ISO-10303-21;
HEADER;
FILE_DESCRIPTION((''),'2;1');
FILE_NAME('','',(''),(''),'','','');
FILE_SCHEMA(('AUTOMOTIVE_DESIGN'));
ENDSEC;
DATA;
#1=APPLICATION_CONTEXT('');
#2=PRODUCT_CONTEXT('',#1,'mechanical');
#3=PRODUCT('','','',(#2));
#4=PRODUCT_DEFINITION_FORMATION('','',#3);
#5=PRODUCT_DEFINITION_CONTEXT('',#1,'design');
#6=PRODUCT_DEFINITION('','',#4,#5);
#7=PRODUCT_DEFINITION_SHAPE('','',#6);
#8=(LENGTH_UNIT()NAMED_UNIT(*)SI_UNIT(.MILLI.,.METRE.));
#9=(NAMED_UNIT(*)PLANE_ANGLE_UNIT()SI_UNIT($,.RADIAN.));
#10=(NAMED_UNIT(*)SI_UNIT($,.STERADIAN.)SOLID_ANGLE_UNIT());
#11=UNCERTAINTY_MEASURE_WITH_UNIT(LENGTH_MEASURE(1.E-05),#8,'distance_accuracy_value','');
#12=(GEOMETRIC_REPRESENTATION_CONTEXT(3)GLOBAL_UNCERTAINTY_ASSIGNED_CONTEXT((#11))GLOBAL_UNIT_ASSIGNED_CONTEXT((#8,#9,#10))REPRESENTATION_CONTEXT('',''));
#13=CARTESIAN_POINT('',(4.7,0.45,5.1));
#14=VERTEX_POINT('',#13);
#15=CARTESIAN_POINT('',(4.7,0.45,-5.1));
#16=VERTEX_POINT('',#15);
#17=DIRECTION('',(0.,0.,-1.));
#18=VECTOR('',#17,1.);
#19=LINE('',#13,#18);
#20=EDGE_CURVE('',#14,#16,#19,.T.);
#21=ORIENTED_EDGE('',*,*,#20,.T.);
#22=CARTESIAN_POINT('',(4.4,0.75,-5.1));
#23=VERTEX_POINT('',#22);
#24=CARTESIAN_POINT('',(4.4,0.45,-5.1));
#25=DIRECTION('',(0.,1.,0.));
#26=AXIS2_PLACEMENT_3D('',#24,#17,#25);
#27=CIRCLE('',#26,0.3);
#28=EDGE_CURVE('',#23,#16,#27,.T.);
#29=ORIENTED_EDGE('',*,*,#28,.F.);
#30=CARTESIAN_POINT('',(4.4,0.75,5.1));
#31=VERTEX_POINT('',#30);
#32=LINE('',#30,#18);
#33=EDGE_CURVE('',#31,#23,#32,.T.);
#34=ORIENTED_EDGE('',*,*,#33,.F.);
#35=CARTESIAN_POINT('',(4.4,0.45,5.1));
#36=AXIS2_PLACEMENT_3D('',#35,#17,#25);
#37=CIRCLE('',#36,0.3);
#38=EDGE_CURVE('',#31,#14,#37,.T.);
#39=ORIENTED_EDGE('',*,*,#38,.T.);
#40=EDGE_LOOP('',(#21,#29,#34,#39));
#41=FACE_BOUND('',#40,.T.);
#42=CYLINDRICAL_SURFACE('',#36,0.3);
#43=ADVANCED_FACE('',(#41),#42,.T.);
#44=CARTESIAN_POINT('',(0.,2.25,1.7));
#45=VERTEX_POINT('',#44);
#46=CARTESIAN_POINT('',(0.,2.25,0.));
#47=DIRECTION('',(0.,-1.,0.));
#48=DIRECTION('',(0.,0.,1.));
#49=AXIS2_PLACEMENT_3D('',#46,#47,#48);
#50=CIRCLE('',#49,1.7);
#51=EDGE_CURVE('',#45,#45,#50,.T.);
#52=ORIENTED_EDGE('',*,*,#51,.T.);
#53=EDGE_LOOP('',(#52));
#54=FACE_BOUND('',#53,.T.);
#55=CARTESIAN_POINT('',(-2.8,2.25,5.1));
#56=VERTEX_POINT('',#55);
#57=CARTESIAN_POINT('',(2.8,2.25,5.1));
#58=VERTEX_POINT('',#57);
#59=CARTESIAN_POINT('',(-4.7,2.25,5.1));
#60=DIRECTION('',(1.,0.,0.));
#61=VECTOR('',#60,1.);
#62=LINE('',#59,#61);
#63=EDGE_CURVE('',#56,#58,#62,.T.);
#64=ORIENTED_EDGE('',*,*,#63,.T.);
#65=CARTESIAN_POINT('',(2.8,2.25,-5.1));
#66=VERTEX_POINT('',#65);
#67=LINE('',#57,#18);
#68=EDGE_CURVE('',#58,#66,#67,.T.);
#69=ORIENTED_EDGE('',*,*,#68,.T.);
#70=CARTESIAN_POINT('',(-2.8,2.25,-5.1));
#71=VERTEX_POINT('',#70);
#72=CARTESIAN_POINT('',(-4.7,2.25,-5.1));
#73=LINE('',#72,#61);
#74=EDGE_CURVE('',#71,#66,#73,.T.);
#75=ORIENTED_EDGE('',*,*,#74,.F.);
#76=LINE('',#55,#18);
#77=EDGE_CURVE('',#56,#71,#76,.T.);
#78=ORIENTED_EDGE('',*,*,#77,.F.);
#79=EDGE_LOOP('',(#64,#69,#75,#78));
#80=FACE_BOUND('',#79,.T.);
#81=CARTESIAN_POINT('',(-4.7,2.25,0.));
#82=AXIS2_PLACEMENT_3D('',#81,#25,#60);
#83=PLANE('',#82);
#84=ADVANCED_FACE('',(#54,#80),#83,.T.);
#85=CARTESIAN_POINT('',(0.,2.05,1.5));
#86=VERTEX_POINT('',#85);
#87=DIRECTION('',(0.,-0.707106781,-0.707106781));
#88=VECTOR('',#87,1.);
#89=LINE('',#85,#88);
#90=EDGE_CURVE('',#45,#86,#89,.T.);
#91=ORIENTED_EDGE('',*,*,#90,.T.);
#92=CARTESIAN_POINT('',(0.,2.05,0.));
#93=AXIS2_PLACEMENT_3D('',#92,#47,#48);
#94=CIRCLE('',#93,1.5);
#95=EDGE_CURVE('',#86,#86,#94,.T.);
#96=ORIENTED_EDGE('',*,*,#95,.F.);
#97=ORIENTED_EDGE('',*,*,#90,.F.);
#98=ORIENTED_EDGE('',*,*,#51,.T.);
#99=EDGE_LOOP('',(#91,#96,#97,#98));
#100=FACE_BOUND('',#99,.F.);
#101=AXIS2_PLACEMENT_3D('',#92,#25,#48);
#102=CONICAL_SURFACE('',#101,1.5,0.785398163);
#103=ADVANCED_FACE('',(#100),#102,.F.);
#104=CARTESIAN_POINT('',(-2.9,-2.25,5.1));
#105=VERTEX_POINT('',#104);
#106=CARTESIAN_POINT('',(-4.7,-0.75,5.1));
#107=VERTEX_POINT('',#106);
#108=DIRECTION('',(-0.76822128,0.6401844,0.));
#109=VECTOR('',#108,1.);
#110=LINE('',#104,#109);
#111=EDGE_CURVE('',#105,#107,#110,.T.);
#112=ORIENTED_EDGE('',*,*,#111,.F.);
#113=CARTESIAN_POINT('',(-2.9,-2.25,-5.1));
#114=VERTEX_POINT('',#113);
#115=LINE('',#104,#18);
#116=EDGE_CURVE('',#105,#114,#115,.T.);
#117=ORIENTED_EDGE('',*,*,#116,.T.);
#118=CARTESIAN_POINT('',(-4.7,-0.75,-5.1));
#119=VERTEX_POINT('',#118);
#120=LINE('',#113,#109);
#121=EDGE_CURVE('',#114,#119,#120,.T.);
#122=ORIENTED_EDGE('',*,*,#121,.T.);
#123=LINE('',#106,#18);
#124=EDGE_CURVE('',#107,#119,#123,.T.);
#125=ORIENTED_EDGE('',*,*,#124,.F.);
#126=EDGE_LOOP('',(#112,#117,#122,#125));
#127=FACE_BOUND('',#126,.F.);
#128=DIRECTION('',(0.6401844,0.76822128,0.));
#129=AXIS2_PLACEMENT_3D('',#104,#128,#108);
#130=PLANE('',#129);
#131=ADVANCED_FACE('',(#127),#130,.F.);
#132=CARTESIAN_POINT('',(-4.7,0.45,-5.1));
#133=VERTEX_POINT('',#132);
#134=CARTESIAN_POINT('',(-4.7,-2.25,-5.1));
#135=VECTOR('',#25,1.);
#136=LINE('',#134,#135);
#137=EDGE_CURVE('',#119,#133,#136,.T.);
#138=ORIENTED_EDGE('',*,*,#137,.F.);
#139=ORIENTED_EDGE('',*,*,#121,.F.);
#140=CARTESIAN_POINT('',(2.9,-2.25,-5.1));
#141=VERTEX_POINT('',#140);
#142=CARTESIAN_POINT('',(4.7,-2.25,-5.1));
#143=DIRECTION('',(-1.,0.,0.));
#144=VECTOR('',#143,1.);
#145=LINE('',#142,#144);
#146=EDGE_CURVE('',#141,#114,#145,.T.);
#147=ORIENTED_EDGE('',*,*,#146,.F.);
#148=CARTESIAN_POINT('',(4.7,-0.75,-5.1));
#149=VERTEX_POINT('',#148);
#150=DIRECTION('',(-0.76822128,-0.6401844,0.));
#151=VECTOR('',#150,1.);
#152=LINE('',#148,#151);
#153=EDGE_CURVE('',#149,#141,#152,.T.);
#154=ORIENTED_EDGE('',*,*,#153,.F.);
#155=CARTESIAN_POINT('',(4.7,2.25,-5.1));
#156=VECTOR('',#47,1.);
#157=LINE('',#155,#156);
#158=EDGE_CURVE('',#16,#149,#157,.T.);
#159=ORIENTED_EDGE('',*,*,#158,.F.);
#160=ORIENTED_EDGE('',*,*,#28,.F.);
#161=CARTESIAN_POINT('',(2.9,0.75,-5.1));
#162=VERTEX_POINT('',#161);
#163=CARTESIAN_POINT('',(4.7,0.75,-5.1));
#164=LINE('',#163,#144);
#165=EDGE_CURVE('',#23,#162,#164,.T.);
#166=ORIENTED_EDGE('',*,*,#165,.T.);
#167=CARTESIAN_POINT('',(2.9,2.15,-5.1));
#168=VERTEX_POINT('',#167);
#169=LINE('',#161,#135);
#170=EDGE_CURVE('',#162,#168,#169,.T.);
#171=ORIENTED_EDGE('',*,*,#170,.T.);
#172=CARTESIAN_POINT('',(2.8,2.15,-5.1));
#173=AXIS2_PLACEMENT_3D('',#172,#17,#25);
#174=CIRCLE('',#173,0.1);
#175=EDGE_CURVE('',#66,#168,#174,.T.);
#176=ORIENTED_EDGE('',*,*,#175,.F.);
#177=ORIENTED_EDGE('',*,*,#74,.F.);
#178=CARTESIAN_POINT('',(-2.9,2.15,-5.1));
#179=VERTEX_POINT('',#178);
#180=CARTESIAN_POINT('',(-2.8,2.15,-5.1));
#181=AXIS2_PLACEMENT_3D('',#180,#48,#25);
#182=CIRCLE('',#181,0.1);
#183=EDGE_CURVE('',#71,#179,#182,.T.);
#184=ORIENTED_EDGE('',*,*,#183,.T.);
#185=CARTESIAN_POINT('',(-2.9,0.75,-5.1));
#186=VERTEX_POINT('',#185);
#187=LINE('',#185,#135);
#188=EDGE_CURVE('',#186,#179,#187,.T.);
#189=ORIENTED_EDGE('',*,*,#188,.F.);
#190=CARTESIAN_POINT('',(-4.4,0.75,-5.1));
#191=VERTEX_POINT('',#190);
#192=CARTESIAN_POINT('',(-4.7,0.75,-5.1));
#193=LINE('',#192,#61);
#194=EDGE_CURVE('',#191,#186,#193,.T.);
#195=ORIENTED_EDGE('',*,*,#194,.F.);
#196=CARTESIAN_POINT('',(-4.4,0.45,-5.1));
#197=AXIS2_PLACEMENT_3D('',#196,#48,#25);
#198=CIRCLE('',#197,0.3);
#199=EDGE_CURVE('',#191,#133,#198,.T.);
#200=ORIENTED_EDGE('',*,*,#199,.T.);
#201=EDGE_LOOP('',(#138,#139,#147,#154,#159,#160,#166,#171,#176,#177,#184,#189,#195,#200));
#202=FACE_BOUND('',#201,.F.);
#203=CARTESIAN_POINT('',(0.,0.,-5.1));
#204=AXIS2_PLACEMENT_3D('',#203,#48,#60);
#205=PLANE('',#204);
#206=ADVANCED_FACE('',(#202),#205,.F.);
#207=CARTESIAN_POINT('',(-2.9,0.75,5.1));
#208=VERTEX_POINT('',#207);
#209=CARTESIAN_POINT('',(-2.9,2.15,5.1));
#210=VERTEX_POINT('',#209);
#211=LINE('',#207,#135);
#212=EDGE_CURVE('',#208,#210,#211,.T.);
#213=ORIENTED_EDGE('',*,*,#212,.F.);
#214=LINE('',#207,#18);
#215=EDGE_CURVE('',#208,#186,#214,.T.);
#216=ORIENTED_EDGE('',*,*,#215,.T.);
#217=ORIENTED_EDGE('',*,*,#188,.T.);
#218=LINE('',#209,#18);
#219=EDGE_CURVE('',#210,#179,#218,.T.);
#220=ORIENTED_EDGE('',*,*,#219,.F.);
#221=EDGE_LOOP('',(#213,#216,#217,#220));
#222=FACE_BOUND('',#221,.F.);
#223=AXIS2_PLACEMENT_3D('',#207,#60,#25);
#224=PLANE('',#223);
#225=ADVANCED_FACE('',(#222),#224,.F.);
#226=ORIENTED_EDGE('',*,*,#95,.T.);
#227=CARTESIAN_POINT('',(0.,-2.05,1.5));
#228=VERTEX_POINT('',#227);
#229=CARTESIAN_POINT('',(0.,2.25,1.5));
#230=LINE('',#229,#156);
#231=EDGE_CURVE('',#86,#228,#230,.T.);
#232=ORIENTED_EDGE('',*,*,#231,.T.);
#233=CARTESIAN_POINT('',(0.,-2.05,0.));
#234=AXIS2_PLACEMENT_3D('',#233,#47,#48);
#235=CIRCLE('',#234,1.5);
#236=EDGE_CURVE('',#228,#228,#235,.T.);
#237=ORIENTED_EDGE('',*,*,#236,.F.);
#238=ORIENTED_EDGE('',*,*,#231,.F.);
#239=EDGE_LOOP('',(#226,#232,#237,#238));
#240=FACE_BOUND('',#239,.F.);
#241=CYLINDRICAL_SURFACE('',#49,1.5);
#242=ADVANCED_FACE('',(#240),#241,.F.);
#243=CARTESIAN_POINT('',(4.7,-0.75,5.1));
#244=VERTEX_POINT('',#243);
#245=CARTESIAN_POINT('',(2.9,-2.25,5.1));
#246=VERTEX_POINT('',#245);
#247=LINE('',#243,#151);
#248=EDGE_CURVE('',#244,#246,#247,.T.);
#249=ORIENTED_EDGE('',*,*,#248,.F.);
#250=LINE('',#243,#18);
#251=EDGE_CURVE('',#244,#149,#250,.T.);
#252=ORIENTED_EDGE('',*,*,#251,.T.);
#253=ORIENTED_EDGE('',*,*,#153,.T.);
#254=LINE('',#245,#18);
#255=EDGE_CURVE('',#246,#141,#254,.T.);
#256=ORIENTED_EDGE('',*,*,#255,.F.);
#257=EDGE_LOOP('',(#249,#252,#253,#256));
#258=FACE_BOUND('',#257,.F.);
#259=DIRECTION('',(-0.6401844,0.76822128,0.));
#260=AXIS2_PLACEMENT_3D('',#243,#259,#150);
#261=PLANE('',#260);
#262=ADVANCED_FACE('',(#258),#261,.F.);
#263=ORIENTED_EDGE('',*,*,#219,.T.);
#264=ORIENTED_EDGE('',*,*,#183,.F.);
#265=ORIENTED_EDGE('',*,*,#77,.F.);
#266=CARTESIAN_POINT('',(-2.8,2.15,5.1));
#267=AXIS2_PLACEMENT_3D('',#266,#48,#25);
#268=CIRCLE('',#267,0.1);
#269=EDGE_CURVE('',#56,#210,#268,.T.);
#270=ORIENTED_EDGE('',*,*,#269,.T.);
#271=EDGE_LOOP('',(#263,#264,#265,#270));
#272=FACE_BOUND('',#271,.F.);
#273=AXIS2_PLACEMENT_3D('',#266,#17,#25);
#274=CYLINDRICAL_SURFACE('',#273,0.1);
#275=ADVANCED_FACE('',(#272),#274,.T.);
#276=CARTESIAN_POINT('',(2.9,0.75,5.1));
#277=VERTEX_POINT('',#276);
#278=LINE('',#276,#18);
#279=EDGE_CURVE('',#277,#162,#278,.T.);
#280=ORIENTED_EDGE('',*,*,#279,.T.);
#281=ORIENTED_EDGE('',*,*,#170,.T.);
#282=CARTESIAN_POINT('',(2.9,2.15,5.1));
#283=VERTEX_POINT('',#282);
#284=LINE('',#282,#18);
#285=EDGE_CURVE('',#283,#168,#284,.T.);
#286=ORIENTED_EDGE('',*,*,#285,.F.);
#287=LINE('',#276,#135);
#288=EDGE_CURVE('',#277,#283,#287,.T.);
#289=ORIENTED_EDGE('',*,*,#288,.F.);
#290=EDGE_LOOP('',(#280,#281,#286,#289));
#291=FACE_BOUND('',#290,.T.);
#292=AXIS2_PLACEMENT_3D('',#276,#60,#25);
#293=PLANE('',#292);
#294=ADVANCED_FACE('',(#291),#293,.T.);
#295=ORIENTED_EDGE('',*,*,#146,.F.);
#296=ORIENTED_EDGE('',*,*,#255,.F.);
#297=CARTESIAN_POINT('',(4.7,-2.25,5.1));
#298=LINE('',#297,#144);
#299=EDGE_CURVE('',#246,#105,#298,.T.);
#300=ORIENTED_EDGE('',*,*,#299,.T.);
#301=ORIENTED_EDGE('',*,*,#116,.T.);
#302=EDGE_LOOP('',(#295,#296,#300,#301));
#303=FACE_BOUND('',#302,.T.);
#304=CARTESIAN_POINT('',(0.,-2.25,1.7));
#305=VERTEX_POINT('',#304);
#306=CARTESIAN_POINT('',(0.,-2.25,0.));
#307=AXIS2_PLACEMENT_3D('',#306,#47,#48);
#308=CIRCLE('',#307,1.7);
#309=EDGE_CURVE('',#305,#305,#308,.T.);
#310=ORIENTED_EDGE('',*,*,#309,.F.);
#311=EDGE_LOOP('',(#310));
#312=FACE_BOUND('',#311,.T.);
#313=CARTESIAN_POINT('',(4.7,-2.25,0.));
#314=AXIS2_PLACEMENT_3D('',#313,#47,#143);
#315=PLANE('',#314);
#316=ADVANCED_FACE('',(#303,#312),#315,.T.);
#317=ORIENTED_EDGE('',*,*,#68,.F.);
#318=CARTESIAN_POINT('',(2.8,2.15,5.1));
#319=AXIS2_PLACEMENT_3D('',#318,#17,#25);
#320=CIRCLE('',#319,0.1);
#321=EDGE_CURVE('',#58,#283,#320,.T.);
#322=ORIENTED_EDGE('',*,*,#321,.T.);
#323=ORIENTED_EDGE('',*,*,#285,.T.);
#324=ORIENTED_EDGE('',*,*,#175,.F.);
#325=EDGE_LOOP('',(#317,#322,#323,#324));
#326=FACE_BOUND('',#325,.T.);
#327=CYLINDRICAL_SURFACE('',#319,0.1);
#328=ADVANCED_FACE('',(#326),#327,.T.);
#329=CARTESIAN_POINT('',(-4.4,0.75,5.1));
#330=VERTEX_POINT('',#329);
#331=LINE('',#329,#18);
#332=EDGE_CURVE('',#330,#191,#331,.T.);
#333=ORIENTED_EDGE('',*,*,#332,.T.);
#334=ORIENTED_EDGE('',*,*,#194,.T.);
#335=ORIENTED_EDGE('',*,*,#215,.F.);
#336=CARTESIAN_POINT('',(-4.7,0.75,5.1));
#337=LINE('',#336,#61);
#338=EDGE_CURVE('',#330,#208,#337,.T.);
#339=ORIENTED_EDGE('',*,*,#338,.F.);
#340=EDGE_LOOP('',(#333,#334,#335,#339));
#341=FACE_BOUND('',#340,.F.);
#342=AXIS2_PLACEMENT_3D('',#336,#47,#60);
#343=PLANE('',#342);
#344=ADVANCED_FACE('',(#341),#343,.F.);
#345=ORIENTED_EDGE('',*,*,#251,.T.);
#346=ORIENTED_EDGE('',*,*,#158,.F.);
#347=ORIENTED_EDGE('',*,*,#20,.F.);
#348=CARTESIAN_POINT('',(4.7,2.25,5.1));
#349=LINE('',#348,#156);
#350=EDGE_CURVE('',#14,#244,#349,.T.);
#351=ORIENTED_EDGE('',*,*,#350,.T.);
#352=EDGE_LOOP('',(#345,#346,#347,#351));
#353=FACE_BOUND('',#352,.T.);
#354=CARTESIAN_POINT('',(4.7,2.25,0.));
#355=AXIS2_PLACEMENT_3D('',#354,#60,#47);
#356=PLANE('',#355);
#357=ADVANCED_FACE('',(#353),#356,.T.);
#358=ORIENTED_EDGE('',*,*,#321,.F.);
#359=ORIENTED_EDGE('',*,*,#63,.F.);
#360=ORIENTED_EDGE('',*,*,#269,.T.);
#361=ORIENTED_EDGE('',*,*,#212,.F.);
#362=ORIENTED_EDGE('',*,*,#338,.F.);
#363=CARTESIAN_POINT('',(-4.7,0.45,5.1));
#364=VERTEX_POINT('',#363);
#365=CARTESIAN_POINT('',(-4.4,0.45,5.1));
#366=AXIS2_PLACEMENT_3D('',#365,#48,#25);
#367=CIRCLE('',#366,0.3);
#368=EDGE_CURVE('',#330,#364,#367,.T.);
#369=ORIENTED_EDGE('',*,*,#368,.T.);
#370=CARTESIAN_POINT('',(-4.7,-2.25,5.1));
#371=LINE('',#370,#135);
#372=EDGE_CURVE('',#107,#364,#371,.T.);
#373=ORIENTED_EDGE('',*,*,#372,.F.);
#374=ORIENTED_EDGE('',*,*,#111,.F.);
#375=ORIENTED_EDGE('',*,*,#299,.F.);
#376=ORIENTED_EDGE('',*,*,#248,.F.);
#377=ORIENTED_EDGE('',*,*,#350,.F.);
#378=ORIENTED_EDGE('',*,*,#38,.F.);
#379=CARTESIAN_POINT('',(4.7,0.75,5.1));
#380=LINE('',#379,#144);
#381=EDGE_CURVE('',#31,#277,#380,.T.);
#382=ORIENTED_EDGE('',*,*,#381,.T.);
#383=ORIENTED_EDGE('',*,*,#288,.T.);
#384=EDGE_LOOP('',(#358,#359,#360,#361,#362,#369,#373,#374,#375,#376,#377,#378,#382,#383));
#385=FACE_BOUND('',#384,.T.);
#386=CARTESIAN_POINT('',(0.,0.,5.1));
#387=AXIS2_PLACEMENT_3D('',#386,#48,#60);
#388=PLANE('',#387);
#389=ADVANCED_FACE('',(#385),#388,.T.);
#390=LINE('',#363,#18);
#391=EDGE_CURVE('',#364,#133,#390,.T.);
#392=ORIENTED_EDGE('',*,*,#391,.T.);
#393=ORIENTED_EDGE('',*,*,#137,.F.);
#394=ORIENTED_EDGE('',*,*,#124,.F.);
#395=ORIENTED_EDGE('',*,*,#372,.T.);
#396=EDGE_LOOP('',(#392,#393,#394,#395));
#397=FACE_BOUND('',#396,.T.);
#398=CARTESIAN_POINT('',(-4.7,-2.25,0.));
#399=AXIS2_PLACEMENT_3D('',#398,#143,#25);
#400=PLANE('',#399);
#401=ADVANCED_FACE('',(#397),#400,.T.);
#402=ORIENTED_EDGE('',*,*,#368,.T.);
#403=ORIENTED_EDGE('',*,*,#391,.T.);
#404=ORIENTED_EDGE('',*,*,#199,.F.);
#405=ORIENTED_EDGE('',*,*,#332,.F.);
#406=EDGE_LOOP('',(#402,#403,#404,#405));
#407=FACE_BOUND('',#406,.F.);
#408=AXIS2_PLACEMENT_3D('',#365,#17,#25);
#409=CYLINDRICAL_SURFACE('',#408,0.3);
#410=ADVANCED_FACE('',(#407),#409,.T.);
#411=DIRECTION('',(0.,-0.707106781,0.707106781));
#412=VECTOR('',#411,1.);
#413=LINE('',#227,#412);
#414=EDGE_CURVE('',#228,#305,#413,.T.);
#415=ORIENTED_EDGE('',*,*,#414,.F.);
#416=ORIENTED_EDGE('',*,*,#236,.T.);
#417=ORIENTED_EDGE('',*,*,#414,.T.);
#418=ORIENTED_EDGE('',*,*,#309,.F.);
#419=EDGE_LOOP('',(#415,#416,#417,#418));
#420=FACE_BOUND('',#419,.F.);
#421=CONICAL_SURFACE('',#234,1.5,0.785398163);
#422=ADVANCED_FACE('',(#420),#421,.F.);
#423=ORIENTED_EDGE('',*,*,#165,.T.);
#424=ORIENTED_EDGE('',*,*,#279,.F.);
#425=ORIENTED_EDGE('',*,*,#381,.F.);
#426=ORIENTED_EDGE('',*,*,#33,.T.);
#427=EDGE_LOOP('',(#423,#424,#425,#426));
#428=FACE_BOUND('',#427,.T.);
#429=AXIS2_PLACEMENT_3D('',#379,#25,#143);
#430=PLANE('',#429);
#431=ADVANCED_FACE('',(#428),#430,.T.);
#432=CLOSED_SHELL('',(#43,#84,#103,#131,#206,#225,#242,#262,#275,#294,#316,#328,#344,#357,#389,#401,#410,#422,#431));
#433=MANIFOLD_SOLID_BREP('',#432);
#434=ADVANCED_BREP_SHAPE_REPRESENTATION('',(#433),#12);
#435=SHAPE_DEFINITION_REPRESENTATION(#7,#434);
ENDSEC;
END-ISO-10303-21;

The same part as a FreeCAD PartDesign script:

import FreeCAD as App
import Part
import Sketcher

V = App.Vector
Q = App.Units.Quantity


def edges_at(feature, points):
    """Names of the edges that pass closest to the given points."""
    edges = feature.Shape.Edges
    near = lambda p: min(range(len(edges)), key=lambda i: edges[i].distToShape(Part.Vertex(*p))[0])
    return sorted({f"Edge{near(p) + 1}" for p in points})


def add_polygon(sketch, points):
    """Adds a closed chain of lines whose ends are joined by coincident constraints."""
    first, n = sketch.GeometryCount, len(points)
    for a, b in zip(points, points[1:] + points[:1]):
        sketch.addGeometry(Part.LineSegment(App.Vector(*a, 0), App.Vector(*b, 0)), False)
    for i in range(n):
        sketch.addConstraint(Sketcher.Constraint("Coincident", first + i, 2, first + (i + 1) % n, 1))

doc = App.newDocument("Part")
body = doc.addObject("PartDesign::Body", "Body")

sketch1 = body.newObject("Sketcher::SketchObject", "Sketch")
sketch1.AttachmentSupport = (doc.getObject("XY_Plane"), [""])
sketch1.MapMode = "FlatFace"
add_polygon(sketch1, [(4.7, 2.2), (-4.7, 2.2), (-4.7, -2.2), (4.7, -2.2)])
sketch1.addConstraint([
    Sketcher.Constraint("Horizontal", 0),
    Sketcher.Constraint("Vertical", 1),
    Sketcher.Constraint("Horizontal", 2),
    Sketcher.Constraint("Vertical", 3),
    Sketcher.Constraint("Symmetric", 0, 2, 2, 2, -1, 1),
    Sketcher.Constraint("DistanceX", 0, 2, 0, 1, Q("9.4 mm")),
    Sketcher.Constraint("DistanceY", 1, 2, 1, 1, Q("4.5 mm")),
])
pad1 = body.newObject("PartDesign::Pad", "Pad")
pad1.Profile = sketch1
pad1.Length = 10.2
pad1.Midplane = True

sketch2 = body.newObject("Sketcher::SketchObject", "Sketch001")
sketch2.AttachmentSupport = (doc.getObject("XY_Plane"), [""])
sketch2.MapMode = "FlatFace"
sketch2.AttachmentOffset = App.Placement(V(0, 0, 5.1), App.Rotation())
add_polygon(sketch2, [(-2.9, 2.2), (-4.7, 2.2), (-4.7, 0.8), (-2.9, 0.8)])
add_polygon(sketch2, [(4.7, 2.2), (2.9, 2.2), (2.9, 0.8), (4.7, 0.8)])
sketch2.addConstraint([
    Sketcher.Constraint("Horizontal", 0),
    Sketcher.Constraint("Vertical", 1),
    Sketcher.Constraint("Horizontal", 2),
    Sketcher.Constraint("Vertical", 3),
    Sketcher.Constraint("Horizontal", 4),
    Sketcher.Constraint("Vertical", 5),
    Sketcher.Constraint("Horizontal", 6),
    Sketcher.Constraint("Vertical", 7),
    Sketcher.Constraint("Symmetric", 3, 2, 4, 2, -2),
    Sketcher.Constraint("Symmetric", 1, 2, 6, 2, -2),
    Sketcher.Constraint("DistanceY", 1, 2, 1, 1, Q("1.5 mm")),
    Sketcher.Constraint("DistanceX", 2, 2, -1, 1, Q("2.9 mm")),
    Sketcher.Constraint("DistanceX", 0, 2, 0, 1, Q("1.8 mm")),
    Sketcher.Constraint("DistanceY", -1, 1, 0, 2, Q("2.25 mm")),
])
pocket1 = body.newObject("PartDesign::Pocket", "Pocket")
pocket1.Profile = sketch2
pocket1.Length = 10.2

sketch3 = body.newObject("Sketcher::SketchObject", "Sketch002")
sketch3.AttachmentSupport = (doc.getObject("XY_Plane"), [""])
sketch3.MapMode = "FlatFace"
sketch3.AttachmentOffset = App.Placement(V(0, 0, 5.1), App.Rotation())
add_polygon(sketch3, [(-4.7, -0.8), (-4.7, -2.2), (-2.9, -2.2)])
add_polygon(sketch3, [(4.7, -0.8), (2.9, -2.2), (4.7, -2.2)])
sketch3.addConstraint([
    Sketcher.Constraint("Vertical", 0),
    Sketcher.Constraint("Horizontal", 1),
    Sketcher.Constraint("Horizontal", 4),
    Sketcher.Constraint("Vertical", 5),
    Sketcher.Constraint("Symmetric", 1, 2, 3, 2, -2),
    Sketcher.Constraint("Symmetric", 2, 2, 5, 2, -2),
    Sketcher.Constraint("DistanceY", 0, 2, 0, 1, Q("1.5 mm")),
    Sketcher.Constraint("DistanceX", 1, 2, -1, 1, Q("2.9 mm")),
    Sketcher.Constraint("DistanceX", 1, 1, 1, 2, Q("1.8 mm")),
    Sketcher.Constraint("DistanceY", 0, 2, -1, 1, Q("2.25 mm")),
])
pocket2 = body.newObject("PartDesign::Pocket", "Pocket001")
pocket2.Profile = sketch3
pocket2.Length = 10.2

sketch4 = body.newObject("Sketcher::SketchObject", "Sketch003")
sketch4.AttachmentSupport = (doc.getObject("XZ_Plane"), [""])
sketch4.MapMode = "FlatFace"
sketch4.AttachmentOffset = App.Placement(V(0, 0, -2.25), App.Rotation())
sketch4.addGeometry(Part.Circle(V(0, 0, 0), V(0, 0, 1), 1.5), False)
sketch4.addConstraint([
    Sketcher.Constraint("Coincident", 0, 3, -1, 1),
    Sketcher.Constraint("Diameter", 0, Q("3 mm")),
])
doc.recompute()
hole = body.newObject("PartDesign::Hole", "Hole")
hole.Profile = sketch4
hole.ThreadType = "None"
hole.Diameter = 3
hole.DepthType = "ThroughAll"
hole.Reversed = True
doc.recompute()

chamfer = body.newObject("PartDesign::Chamfer", "Chamfer")
chamfer.Base = (hole, edges_at(hole, [(0, 2.25, -1.5), (0, -2.25, -1.5)]))
chamfer.Size = 0.2
doc.recompute()

fillet = body.newObject("PartDesign::Fillet", "Fillet")
fillet.Base = (chamfer, edges_at(chamfer, [(2.9, 2.25, 0), (-2.9, 2.25, 0)]))
fillet.Radius = 0.1
doc.recompute()

fillet2 = body.newObject("PartDesign::Fillet", "Fillet001")
fillet2.Base = (fillet, edges_at(fillet, [(-4.7, 0.75, 0), (4.7, 0.75, 0)]))
fillet2.Radius = 0.3

doc.recompute()
